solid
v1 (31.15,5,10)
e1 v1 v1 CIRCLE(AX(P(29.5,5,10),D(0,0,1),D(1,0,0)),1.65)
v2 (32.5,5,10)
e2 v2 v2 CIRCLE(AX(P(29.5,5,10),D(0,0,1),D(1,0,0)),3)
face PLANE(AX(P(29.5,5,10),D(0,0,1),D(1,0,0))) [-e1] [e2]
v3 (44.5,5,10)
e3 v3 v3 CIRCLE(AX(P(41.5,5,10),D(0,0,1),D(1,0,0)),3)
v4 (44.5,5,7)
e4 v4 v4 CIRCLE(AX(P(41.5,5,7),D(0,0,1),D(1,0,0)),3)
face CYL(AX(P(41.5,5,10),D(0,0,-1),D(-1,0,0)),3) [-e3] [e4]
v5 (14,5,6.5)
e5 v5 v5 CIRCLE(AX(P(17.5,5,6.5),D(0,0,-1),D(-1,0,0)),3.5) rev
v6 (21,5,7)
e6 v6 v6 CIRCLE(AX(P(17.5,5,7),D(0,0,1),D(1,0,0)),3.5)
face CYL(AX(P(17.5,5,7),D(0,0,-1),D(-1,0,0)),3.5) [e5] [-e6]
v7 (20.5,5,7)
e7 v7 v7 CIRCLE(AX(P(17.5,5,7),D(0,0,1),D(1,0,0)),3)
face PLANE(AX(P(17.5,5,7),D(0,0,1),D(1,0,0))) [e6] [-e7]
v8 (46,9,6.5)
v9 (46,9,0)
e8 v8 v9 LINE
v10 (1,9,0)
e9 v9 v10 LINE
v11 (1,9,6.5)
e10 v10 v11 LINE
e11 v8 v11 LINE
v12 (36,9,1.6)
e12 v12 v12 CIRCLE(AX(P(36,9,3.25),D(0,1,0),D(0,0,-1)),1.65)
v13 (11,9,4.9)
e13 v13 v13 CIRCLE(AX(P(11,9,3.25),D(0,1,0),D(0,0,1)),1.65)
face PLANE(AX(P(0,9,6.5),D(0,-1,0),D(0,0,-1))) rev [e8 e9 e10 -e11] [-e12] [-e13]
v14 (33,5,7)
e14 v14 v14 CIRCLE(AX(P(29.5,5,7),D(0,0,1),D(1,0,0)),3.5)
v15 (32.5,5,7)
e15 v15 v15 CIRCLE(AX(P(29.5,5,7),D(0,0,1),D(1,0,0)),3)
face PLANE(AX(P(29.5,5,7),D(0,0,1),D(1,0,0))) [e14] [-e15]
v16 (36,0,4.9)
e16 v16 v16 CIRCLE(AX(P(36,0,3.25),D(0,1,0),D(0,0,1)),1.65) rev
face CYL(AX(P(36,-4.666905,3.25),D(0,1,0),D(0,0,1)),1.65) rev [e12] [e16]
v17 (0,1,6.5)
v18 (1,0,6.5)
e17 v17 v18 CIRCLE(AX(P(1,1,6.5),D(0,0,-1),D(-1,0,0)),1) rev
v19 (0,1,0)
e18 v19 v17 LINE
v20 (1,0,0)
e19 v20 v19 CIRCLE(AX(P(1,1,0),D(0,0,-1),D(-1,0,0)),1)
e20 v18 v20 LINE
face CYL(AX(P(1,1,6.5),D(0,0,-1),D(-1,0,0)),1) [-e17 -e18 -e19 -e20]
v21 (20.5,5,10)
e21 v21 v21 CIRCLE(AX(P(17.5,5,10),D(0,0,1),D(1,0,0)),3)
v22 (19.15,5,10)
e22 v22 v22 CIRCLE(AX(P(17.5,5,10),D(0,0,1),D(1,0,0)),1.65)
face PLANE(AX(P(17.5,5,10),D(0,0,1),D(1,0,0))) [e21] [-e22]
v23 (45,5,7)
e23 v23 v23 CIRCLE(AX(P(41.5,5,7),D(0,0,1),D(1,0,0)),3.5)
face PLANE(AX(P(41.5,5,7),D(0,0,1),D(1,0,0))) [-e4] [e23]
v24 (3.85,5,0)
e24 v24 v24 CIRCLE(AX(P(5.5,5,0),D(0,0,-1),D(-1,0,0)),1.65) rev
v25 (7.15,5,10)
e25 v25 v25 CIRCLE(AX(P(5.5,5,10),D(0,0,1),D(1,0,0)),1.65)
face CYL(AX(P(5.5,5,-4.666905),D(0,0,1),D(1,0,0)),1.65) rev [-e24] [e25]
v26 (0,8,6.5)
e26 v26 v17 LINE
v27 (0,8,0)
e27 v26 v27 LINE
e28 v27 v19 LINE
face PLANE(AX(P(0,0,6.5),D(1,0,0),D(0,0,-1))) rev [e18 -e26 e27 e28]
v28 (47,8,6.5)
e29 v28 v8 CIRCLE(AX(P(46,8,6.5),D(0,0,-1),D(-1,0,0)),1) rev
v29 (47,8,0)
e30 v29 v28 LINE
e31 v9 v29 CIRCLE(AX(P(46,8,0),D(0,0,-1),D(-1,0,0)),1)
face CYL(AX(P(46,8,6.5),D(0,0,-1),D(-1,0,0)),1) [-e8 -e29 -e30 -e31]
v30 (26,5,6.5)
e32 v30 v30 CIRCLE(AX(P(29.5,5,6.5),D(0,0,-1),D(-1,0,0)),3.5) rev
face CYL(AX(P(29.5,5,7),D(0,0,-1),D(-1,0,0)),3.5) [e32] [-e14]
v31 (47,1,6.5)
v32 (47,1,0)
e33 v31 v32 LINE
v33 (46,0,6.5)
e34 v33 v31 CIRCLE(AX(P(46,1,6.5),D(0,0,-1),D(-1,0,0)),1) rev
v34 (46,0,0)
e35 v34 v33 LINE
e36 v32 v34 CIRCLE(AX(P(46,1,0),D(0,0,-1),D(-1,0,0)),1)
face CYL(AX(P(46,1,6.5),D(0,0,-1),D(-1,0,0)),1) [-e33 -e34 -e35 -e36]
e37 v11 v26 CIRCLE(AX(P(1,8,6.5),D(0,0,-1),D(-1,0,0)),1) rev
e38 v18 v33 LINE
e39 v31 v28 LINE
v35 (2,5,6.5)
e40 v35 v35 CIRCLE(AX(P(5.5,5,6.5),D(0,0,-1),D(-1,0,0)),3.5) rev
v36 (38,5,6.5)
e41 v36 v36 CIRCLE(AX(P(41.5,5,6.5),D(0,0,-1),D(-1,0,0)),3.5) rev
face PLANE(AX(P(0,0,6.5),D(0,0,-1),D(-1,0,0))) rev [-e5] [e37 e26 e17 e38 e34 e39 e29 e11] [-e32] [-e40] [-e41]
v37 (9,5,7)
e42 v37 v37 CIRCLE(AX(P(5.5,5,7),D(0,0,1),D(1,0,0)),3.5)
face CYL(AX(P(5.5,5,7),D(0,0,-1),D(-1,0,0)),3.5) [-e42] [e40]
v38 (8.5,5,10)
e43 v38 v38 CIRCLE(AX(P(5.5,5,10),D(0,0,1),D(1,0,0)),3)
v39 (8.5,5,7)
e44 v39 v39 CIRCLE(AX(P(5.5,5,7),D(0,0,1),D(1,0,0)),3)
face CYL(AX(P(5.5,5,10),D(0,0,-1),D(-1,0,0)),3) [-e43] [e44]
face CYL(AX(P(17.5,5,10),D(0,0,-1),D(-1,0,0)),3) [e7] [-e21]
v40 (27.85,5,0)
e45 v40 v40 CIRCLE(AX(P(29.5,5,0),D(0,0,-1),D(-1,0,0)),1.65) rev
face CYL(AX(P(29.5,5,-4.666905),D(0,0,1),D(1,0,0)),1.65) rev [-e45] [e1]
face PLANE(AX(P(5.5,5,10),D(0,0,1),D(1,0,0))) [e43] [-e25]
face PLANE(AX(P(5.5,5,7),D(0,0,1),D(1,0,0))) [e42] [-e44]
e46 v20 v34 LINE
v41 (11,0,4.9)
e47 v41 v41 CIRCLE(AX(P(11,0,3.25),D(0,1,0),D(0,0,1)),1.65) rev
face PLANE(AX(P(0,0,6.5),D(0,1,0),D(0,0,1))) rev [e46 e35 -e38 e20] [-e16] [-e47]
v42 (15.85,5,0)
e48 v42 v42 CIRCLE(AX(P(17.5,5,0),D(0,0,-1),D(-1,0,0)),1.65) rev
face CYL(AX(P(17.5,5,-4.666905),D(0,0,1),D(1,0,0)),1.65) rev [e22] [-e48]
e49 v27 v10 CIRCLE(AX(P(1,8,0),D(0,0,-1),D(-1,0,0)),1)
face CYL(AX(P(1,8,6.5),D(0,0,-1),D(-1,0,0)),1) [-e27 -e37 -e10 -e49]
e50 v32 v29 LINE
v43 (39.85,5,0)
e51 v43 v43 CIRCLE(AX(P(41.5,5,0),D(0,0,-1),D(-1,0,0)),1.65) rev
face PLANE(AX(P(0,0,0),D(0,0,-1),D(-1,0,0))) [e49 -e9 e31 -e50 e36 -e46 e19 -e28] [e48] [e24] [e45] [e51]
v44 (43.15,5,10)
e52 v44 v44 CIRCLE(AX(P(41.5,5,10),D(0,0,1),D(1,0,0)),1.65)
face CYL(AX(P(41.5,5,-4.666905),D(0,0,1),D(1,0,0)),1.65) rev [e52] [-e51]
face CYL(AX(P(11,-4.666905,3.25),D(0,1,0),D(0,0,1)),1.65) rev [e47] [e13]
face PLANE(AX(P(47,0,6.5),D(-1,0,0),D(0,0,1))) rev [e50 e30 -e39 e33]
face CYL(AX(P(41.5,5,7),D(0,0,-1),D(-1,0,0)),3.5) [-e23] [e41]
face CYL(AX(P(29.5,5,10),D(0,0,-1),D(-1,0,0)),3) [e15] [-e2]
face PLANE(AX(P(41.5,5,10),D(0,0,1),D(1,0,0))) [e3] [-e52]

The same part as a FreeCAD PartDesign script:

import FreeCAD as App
import Part
import Sketcher
from FreeCAD import Vector


def edges_at(feature, points):
    """Names of the edges that pass closest to the given points."""
    edges = feature.Shape.Edges
    near = lambda p: min(range(len(edges)), key=lambda i: edges[i].distToShape(Part.Vertex(*p))[0])
    return sorted({f"Edge{near(p) + 1}" for p in points})


def add_polygon(sketch, points):
    """Adds a closed chain of lines whose ends are joined by coincident constraints."""
    first, n = sketch.GeometryCount, len(points)
    for a, b in zip(points, points[1:] + points[:1]):
        sketch.addGeometry(Part.LineSegment(App.Vector(*a, 0), App.Vector(*b, 0)), False)
    for i in range(n):
        sketch.addConstraint(Sketcher.Constraint("Coincident", first + i, 2, first + (i + 1) % n, 1))

doc = App.newDocument("Part")
params = doc.addObject("Spreadsheet::Sheet", "Params")
for row, (alias, value) in enumerate([
    ("sketch1_width", "47 mm"),
    ("sketch1_height", "9 mm"),
    ("pad1_length", "6.5 mm"),
    ("sketch2_diameter", "6 mm"),
    ("pad2_length", "3.5 mm"),
    ("sketch3_diameter", "7 mm"),
    ("pad3_length", "0.5 mm"),
    ("sketch4_diameter", "3.3 mm"),
    ("pocket1_length", "10 mm"),
    ("sketch5_diameter", "3.3 mm"),
    ("pocket2_length", "9 mm"),
    ("fillet_radius", "1 mm"),
], start=1):
    params.set(f"A{row}", alias)
    params.set(f"B{row}", "=" + value)
    params.setAlias(f"B{row}", alias)

body = doc.addObject("PartDesign::Body", "Body")

# Sketch on XY plane
sketch1 = body.newObject("Sketcher::SketchObject", "Sketch")
sketch1.AttachmentSupport = (doc.getObject("XY_Plane"), [""])
sketch1.MapMode = "FlatFace"
add_polygon(sketch1, [(0, 9), (0, 0), (47, 0), (47, 9)])  # lines 0-3
sketch1.addConstraint([
    Sketcher.Constraint("Vertical", 0),
    Sketcher.Constraint("Horizontal", 1),
    Sketcher.Constraint("Vertical", 2),
    Sketcher.Constraint("Horizontal", 3),
    Sketcher.Constraint("Coincident", 0, 2, -1, 1),
    Sketcher.Constraint("DistanceX", 1, 1, 1, 2, 47.0),
    Sketcher.Constraint("DistanceY", 0, 2, 0, 1, 9.0),
])
sketch1.setExpression("Constraints[9]", "Params.sketch1_width")
sketch1.setExpression("Constraints[10]", "Params.sketch1_height")
pad1 = body.newObject("PartDesign::Pad", "Pad")
pad1.Profile = sketch1
pad1.setExpression("Length", "Params.pad1_length")

# Sketch on XY plane
sketch2 = body.newObject("Sketcher::SketchObject", "Sketch001")
sketch2.AttachmentSupport = (doc.getObject("XY_Plane"), [""])
sketch2.MapMode = "FlatFace"
sketch2.AttachmentOffset = App.Placement(Vector(0, 0, 6.5), App.Rotation())
sketch2.addGeometry([
    Part.Circle(Vector(5.5, 5, 0), Vector(0, 0, 1), 3),
    Part.Circle(Vector(17.5, 5, 0), Vector(0, 0, 1), 3),
    Part.Circle(Vector(29.5, 5, 0), Vector(0, 0, 1), 3),
    Part.Circle(Vector(41.5, 5, 0), Vector(0, 0, 1), 3),
], False)
sketch2.addConstraint([
    Sketcher.Constraint("Equal", 0, 1),
    Sketcher.Constraint("Equal", 1, 2),
    Sketcher.Constraint("Equal", 2, 3),
    Sketcher.Constraint("Horizontal", 0, 3, 1, 3),
    Sketcher.Constraint("Horizontal", 1, 3, 2, 3),
    Sketcher.Constraint("Horizontal", 2, 3, 3, 3),
    Sketcher.Constraint("Diameter", 0, 6.0),
    Sketcher.Constraint("DistanceY", -1, 1, 0, 3, 5.0),
    Sketcher.Constraint("DistanceX", 0, 3, 1, 3, 12.0),
    Sketcher.Constraint("DistanceX", 1, 3, 2, 3, 12.0),
    Sketcher.Constraint("DistanceX", 2, 3, 3, 3, 12.0),
    Sketcher.Constraint("DistanceX", -1, 1, 0, 3, 5.5),
])
sketch2.setExpression("Constraints[6]", "Params.sketch2_diameter")
pad2 = body.newObject("PartDesign::Pad", "Pad001")
pad2.Profile = sketch2
pad2.setExpression("Length", "Params.pad2_length")

# Sketch on XY plane
sketch3 = body.newObject("Sketcher::SketchObject", "Sketch002")
sketch3.AttachmentSupport = (doc.getObject("XY_Plane"), [""])
sketch3.MapMode = "FlatFace"
sketch3.AttachmentOffset = App.Placement(Vector(0, 0, 6.5), App.Rotation())
sketch3.addGeometry([
    Part.Circle(Vector(5.5, 5, 0), Vector(0, 0, 1), 3.5),
    Part.Circle(Vector(17.5, 5, 0), Vector(0, 0, 1), 3.5),
    Part.Circle(Vector(29.5, 5, 0), Vector(0, 0, 1), 3.5),
    Part.Circle(Vector(41.5, 5, 0), Vector(0, 0, 1), 3.5),
], False)
sketch3.addConstraint([
    Sketcher.Constraint("Equal", 0, 1),
    Sketcher.Constraint("Equal", 1, 2),
    Sketcher.Constraint("Equal", 2, 3),
    Sketcher.Constraint("Horizontal", 0, 3, 1, 3),
    Sketcher.Constraint("Horizontal", 1, 3, 2, 3),
    Sketcher.Constraint("Horizontal", 2, 3, 3, 3),
    Sketcher.Constraint("Diameter", 0, 7.0),
    Sketcher.Constraint("DistanceY", -1, 1, 0, 3, 5.0),
    Sketcher.Constraint("DistanceX", 0, 3, 1, 3, 12.0),
    Sketcher.Constraint("DistanceX", 1, 3, 2, 3, 12.0),
    Sketcher.Constraint("DistanceX", 2, 3, 3, 3, 12.0),
    Sketcher.Constraint("DistanceX", -1, 1, 0, 3, 5.5),
])
sketch3.setExpression("Constraints[6]", "Params.sketch3_diameter")
pad3 = body.newObject("PartDesign::Pad", "Pad002")
pad3.Profile = sketch3
pad3.setExpression("Length", "Params.pad3_length")

# Sketch on XY plane
sketch4 = body.newObject("Sketcher::SketchObject", "Sketch003")
sketch4.AttachmentSupport = (doc.getObject("XY_Plane"), [""])
sketch4.MapMode = "FlatFace"
sketch4.AttachmentOffset = App.Placement(Vector(0, 0, 10), App.Rotation())
sketch4.addGeometry([
    Part.Circle(Vector(5.5, 5, 0), Vector(0, 0, 1), 1.6),
    Part.Circle(Vector(17.5, 5, 0), Vector(0, 0, 1), 1.6),
    Part.Circle(Vector(29.5, 5, 0), Vector(0, 0, 1), 1.6),
    Part.Circle(Vector(41.5, 5, 0), Vector(0, 0, 1), 1.6),
], False)
sketch4.addConstraint([
    Sketcher.Constraint("Equal", 0, 1),
    Sketcher.Constraint("Equal", 1, 2),
    Sketcher.Constraint("Equal", 2, 3),
    Sketcher.Constraint("Horizontal", 0, 3, 1, 3),
    Sketcher.Constraint("Horizontal", 1, 3, 2, 3),
    Sketcher.Constraint("Horizontal", 2, 3, 3, 3),
    Sketcher.Constraint("Diameter", 0, 3.3),
    Sketcher.Constraint("DistanceY", -1, 1, 0, 3, 5.0),
    Sketcher.Constraint("DistanceX", 0, 3, 1, 3, 12.0),
    Sketcher.Constraint("DistanceX", 1, 3, 2, 3, 12.0),
    Sketcher.Constraint("DistanceX", 2, 3, 3, 3, 12.0),
    Sketcher.Constraint("DistanceX", -1, 1, 0, 3, 5.5),
])
sketch4.setExpression("Constraints[6]", "Params.sketch4_diameter")
pocket1 = body.newObject("PartDesign::Pocket", "Pocket")
pocket1.Profile = sketch4
pocket1.setExpression("Length", "Params.pocket1_length")

# Sketch on XZ plane
sketch5 = body.newObject("Sketcher::SketchObject", "Sketch004")
sketch5.AttachmentSupport = (doc.getObject("XZ_Plane"), [""])
sketch5.MapMode = "FlatFace"
sketch5.AttachmentOffset = App.Placement(Vector(0, 0, -9), App.Rotation())
sketch5.addGeometry([
    Part.Circle(Vector(11, 3.2, 0), Vector(0, 0, 1), 1.6),
    Part.Circle(Vector(36, 3.2, 0), Vector(0, 0, 1), 1.6),
], False)
sketch5.addConstraint([
    Sketcher.Constraint("Equal", 0, 1),
    Sketcher.Constraint("Horizontal", 0, 3, 1, 3),
    Sketcher.Constraint("Diameter", 0, 3.3),
    Sketcher.Constraint("DistanceX", -1, 1, 0, 3, 11.0),
    Sketcher.Constraint("DistanceX", -1, 1, 1, 3, 36.0),
    Sketcher.Constraint("DistanceY", -1, 1, 0, 3, 3.25),
])
sketch5.setExpression("Constraints[2]", "Params.sketch5_diameter")
pocket2 = body.newObject("PartDesign::Pocket", "Pocket001")
pocket2.Profile = sketch5
pocket2.setExpression("Length", "Params.pocket2_length")
pocket2.Reversed = True
doc.recompute()

fillet = body.newObject("PartDesign::Fillet", "Fillet")
fillet.Base = (pocket2, edges_at(pocket2, [
    (0, 9, 3.25),
    (47, 9, 3.25),
    (47, 0, 3.25),
    (0, 0, 3.25),
]))
fillet.setExpression("Radius", "Params.fillet_radius")

doc.recompute()
